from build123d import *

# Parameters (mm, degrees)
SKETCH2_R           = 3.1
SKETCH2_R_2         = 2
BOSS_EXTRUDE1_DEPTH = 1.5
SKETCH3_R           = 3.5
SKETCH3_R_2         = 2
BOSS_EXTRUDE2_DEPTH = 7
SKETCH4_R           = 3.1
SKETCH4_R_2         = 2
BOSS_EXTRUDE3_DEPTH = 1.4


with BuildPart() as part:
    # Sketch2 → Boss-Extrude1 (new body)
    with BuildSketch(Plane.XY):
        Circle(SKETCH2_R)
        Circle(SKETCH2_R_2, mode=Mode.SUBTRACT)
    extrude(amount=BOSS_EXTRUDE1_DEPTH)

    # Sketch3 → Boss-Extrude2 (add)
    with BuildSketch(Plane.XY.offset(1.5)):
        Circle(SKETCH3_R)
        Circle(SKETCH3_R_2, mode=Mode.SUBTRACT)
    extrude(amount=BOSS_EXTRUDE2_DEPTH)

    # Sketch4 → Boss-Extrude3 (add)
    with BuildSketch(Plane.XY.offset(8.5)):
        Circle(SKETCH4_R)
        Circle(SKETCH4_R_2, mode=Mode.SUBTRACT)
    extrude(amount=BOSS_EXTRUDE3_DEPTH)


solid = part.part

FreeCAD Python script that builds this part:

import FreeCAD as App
import Part
import Sketcher

doc = App.newDocument("Part")
body = doc.addObject("PartDesign::Body", "Body")

sketch1 = doc.addObject("Sketcher::SketchObject", "Sketch")
body.addObject(sketch1)
sketch1.AttachmentSupport = (doc.XY_Plane, [""])
sketch1.MapMode = "FlatFace"
sketch1.addGeometry(Part.Circle(App.Vector(0, 0, 0), App.Vector(0, 0, 1), 3.1), False)
sketch1.addGeometry(Part.Circle(App.Vector(0, 0, 0), App.Vector(0, 0, 1), 2), False)
sketch1.addConstraint(Sketcher.Constraint("Coincident", 0, 3, -1, 1))
sketch1.addConstraint(Sketcher.Constraint("Coincident", 1, 3, -1, 1))
sketch1.addConstraint(Sketcher.Constraint("Diameter", 1, 4.0))
sketch1.addConstraint(Sketcher.Constraint("Diameter", 0, 6.2))
pad1 = doc.addObject("PartDesign::Pad", "Pad")
body.addObject(pad1)
pad1.Profile = sketch1
pad1.Length = 1.5

sketch2 = doc.addObject("Sketcher::SketchObject", "Sketch001")
body.addObject(sketch2)
sketch2.AttachmentSupport = (doc.XY_Plane, [""])
sketch2.MapMode = "FlatFace"
sketch2.AttachmentOffset = App.Placement(App.Vector(0, 0, 1.5), App.Rotation())
sketch2.addGeometry(Part.Circle(App.Vector(0, 0, 0), App.Vector(0, 0, 1), 3.5), False)
sketch2.addGeometry(Part.Circle(App.Vector(0, 0, 0), App.Vector(0, 0, 1), 2), False)
sketch2.addConstraint(Sketcher.Constraint("Coincident", 0, 3, -1, 1))
sketch2.addConstraint(Sketcher.Constraint("Coincident", 1, 3, -1, 1))
sketch2.addConstraint(Sketcher.Constraint("Diameter", 0, 7.0))
sketch2.addConstraint(Sketcher.Constraint("Diameter", 1, 4.0))
pad2 = doc.addObject("PartDesign::Pad", "Pad001")
body.addObject(pad2)
pad2.Profile = sketch2
pad2.Length = 7

sketch3 = doc.addObject("Sketcher::SketchObject", "Sketch002")
body.addObject(sketch3)
sketch3.AttachmentSupport = (doc.XY_Plane, [""])
sketch3.MapMode = "FlatFace"
sketch3.AttachmentOffset = App.Placement(App.Vector(0, 0, 8.5), App.Rotation())
sketch3.addGeometry(Part.Circle(App.Vector(0, 0, 0), App.Vector(0, 0, 1), 3.1), False)
sketch3.addGeometry(Part.Circle(App.Vector(0, 0, 0), App.Vector(0, 0, 1), 2), False)
sketch3.addConstraint(Sketcher.Constraint("Coincident", 0, 3, -1, 1))
sketch3.addConstraint(Sketcher.Constraint("Coincident", 1, 3, -1, 1))
sketch3.addConstraint(Sketcher.Constraint("Diameter", 1, 4.0))
sketch3.addConstraint(Sketcher.Constraint("Diameter", 0, 6.2))
pad3 = doc.addObject("PartDesign::Pad", "Pad002")
body.addObject(pad3)
pad3.Profile = sketch3
pad3.Length = 1.4

doc.recompute()
